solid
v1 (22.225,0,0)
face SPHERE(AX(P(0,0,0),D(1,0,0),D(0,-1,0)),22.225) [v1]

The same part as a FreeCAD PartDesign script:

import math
import FreeCAD as App
import Part
import Sketcher

V = App.Vector
Q = App.Units.Quantity

doc = App.newDocument("Part")
body = doc.addObject("PartDesign::Body", "Body")

sketch1 = body.newObject("Sketcher::SketchObject", "Sketch")
sketch1.AttachmentSupport = (doc.getObject("XY_Plane"), [""])
sketch1.MapMode = "FlatFace"
sketch1.addGeometry([
    Part.ArcOfCircle(Part.Circle(V(0, 0, 0), V(0, 0, 1), 22), math.radians(180), math.radians(360)),
    Part.LineSegment(V(22, 0, 0), V(-22, 0, 0)),
], False)
sketch1.addConstraint([
    Sketcher.Constraint("Coincident", 0, 1, 1, 2),
    Sketcher.Constraint("Coincident", 1, 1, 0, 2),
    Sketcher.Constraint("Horizontal", 1),
    Sketcher.Constraint("Coincident", 0, 3, -1, 1),
    Sketcher.Constraint("PointOnObject", 0, 1, -1),
    Sketcher.Constraint("Radius", 0, Q("0.875 in")),
])
revolution = body.newObject("PartDesign::Revolution", "Revolution")
revolution.Profile = sketch1
revolution.ReferenceAxis = (sketch1, ["H_Axis"])
revolution.Angle = 360

doc.recompute()
